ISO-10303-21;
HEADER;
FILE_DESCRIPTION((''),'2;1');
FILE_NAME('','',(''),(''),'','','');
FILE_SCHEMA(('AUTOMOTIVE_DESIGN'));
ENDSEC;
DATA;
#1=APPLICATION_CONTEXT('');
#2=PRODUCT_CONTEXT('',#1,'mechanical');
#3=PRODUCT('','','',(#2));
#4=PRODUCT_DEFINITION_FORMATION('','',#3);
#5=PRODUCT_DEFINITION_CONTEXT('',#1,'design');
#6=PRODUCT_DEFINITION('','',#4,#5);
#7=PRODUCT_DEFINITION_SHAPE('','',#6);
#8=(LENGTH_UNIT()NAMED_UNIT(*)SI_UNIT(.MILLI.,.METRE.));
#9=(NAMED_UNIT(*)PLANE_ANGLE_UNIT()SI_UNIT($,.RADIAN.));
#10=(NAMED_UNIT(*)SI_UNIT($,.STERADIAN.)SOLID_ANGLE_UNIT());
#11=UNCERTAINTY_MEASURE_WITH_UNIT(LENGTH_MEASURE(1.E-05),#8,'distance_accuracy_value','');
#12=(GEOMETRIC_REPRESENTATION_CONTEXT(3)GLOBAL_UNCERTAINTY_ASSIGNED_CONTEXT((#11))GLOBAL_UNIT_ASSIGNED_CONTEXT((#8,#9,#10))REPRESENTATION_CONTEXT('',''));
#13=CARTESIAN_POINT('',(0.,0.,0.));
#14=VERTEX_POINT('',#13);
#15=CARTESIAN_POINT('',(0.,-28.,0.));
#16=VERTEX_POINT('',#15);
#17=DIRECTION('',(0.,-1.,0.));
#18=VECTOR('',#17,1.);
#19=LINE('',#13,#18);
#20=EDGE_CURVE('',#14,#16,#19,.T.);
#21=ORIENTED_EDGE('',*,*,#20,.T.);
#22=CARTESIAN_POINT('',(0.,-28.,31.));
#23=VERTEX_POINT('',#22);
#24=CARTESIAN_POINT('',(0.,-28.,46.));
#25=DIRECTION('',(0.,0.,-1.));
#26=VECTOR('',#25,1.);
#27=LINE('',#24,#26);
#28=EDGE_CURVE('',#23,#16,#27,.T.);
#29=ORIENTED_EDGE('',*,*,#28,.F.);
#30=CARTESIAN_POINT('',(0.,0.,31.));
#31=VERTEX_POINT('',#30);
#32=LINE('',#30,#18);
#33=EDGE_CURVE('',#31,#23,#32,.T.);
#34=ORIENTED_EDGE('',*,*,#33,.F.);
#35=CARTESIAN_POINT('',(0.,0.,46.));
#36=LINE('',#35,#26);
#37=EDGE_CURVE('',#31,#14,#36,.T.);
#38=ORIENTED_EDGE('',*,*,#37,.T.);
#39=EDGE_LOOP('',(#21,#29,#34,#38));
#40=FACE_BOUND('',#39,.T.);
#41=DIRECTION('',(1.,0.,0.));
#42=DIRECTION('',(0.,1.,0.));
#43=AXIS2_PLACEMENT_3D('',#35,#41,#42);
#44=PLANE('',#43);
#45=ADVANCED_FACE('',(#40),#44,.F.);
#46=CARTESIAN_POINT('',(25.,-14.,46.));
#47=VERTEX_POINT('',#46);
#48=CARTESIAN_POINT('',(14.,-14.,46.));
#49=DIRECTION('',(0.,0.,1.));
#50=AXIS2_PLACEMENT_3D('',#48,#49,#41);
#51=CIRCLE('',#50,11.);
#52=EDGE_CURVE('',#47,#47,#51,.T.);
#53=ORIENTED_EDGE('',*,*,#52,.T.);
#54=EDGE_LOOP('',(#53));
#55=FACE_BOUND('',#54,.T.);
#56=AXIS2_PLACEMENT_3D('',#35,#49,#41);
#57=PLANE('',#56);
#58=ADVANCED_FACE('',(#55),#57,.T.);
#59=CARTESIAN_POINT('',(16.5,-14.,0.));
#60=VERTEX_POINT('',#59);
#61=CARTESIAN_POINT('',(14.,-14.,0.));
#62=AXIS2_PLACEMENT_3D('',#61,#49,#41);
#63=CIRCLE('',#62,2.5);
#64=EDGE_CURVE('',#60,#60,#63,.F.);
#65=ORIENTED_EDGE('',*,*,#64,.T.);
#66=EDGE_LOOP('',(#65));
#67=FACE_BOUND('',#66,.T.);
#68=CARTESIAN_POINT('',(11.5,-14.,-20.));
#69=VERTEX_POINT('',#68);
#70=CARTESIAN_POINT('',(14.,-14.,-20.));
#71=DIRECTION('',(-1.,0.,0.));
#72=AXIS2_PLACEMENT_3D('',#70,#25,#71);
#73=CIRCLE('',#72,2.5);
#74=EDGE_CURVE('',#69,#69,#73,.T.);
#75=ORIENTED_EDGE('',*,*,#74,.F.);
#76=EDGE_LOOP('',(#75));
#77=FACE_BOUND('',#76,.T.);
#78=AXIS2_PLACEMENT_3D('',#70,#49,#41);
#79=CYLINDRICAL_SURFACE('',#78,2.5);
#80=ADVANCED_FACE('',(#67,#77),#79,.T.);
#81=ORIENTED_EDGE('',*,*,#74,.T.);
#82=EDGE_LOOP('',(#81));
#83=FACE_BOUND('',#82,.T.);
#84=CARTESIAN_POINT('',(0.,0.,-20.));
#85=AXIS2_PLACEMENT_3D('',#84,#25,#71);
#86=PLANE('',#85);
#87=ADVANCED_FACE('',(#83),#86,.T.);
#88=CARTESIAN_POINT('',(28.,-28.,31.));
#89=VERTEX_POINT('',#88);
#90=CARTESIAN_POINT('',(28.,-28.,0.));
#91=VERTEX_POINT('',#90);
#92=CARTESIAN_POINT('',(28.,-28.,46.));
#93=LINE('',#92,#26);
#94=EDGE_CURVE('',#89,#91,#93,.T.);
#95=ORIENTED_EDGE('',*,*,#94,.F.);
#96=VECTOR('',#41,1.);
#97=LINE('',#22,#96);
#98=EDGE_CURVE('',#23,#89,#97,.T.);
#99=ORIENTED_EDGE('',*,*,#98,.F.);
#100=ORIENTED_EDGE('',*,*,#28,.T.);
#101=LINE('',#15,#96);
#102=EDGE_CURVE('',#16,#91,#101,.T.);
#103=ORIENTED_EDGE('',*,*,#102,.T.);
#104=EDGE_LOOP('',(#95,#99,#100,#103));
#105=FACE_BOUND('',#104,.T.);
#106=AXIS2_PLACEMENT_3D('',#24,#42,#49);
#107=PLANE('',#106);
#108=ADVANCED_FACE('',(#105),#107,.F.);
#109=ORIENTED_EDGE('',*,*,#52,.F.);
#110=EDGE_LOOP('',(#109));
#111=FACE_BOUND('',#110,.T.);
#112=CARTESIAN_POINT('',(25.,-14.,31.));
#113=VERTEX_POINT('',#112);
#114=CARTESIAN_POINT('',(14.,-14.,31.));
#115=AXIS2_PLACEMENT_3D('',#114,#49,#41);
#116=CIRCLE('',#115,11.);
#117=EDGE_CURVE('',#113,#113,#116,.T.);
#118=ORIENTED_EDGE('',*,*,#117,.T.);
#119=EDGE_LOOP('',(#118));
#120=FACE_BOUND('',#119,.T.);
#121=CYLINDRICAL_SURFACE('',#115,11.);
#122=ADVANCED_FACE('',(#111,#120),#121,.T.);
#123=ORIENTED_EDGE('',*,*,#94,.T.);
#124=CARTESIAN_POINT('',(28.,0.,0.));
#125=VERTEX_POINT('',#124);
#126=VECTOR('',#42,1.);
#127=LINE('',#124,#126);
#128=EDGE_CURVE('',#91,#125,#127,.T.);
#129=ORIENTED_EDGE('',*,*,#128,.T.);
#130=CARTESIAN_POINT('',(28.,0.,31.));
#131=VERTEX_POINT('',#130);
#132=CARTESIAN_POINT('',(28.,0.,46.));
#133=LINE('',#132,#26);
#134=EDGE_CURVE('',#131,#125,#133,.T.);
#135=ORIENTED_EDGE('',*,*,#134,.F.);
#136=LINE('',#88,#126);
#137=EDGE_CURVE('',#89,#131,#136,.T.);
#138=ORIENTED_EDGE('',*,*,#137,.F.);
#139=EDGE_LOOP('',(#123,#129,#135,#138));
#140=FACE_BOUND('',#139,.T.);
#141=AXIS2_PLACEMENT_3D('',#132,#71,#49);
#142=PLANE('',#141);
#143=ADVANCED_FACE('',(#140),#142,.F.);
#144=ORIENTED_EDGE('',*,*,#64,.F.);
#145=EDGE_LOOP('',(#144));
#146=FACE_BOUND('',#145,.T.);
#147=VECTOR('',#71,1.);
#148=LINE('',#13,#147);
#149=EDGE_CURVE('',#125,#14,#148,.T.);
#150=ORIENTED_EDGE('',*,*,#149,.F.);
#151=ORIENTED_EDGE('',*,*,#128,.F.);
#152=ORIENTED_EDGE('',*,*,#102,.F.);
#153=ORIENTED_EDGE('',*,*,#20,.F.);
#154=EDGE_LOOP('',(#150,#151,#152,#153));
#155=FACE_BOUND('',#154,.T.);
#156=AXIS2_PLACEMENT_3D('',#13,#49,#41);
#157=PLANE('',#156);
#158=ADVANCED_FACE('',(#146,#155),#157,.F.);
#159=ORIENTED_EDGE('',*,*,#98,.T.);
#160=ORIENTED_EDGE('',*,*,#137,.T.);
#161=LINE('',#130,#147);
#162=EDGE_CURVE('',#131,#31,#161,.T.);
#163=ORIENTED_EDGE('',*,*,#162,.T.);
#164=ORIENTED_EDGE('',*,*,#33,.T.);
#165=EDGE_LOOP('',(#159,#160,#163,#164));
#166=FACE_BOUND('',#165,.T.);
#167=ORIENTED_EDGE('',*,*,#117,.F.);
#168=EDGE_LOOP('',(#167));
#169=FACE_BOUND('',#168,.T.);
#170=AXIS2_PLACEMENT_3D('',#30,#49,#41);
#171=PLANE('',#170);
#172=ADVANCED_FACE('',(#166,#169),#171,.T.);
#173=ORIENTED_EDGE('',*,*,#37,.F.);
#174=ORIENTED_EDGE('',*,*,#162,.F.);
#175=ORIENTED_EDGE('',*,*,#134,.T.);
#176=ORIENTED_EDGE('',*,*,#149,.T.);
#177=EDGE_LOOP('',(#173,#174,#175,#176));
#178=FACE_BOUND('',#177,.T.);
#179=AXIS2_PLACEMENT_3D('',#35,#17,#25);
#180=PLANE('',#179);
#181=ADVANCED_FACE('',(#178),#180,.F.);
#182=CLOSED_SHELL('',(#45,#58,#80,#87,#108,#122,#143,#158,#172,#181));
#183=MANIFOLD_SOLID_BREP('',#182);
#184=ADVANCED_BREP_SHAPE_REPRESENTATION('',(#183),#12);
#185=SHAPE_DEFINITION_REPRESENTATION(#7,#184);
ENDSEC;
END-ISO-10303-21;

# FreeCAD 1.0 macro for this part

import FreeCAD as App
import Part
import Sketcher


def add_polygon(sketch, points):
    """Adds a closed chain of lines whose ends are joined by coincident constraints."""
    first, n = sketch.GeometryCount, len(points)
    for a, b in zip(points, points[1:] + points[:1]):
        sketch.addGeometry(Part.LineSegment(App.Vector(*a, 0), App.Vector(*b, 0)), False)
    for i in range(n):
        sketch.addConstraint(Sketcher.Constraint("Coincident", first + i, 2, first + (i + 1) % n, 1))

doc = App.newDocument("Part")
body = doc.addObject("PartDesign::Body", "Body")

# Sketch on XY plane
sketch1 = body.newObject("Sketcher::SketchObject", "Sketch")
sketch1.AttachmentSupport = (doc.getObject("XY_Plane"), [""])
sketch1.MapMode = "FlatFace"
add_polygon(sketch1, [(0, 0), (0, -28), (28, -28), (28, 0)])  # lines 0-3
sketch1.addConstraint([
    Sketcher.Constraint("Vertical", 0),
    Sketcher.Constraint("Horizontal", 1),
    Sketcher.Constraint("Vertical", 2),
    Sketcher.Constraint("Horizontal", 3),
    Sketcher.Constraint("Coincident", 3, 2, -1, 1),
    Sketcher.Constraint("Equal", 3, 0),
    Sketcher.Constraint("DistanceX", 1, 1, 1, 2, 28.0),
])
pad1 = body.newObject("PartDesign::Pad", "Pad")
pad1.Profile = sketch1
pad1.Length = 46

# Sketch on XY plane
sketch2 = body.newObject("Sketcher::SketchObject", "Sketch001")
sketch2.AttachmentSupport = (doc.getObject("XY_Plane"), [""])
sketch2.MapMode = "FlatFace"
sketch2.AttachmentOffset = App.Placement(App.Vector(0, 0, 46), App.Rotation())
add_polygon(sketch2, [(0, 0), (0, -28), (28, -28), (28, 0)])  # lines 0-3
sketch2.addGeometry(Part.Circle(App.Vector(14, -14, 0), App.Vector(0, 0, 1), 11), False)  # 4
sketch2.addConstraint([
    Sketcher.Constraint("Vertical", 0),
    Sketcher.Constraint("Horizontal", 1),
    Sketcher.Constraint("Vertical", 2),
    Sketcher.Constraint("Horizontal", 3),
    Sketcher.Constraint("Coincident", 3, 2, -1, 1),
    Sketcher.Constraint("Equal", 3, 0),
    Sketcher.Constraint("Diameter", 4, 22.0),
    Sketcher.Constraint("DistanceX", 1, 1, 1, 2, 28.0),
    Sketcher.Constraint("DistanceX", -1, 1, 4, 3, 14.0),
    Sketcher.Constraint("DistanceY", 4, 3, -1, 1, 14.0),
])
pocket1 = body.newObject("PartDesign::Pocket", "Pocket")
pocket1.Profile = sketch2
pocket1.Length = 15

# Sketch on XY plane
sketch3 = body.newObject("Sketcher::SketchObject", "Sketch002")
sketch3.AttachmentSupport = (doc.getObject("XY_Plane"), [""])
sketch3.MapMode = "FlatFace"
sketch3.addGeometry(Part.Circle(App.Vector(14, -14, 0), App.Vector(0, 0, 1), 2.5), False)
sketch3.addConstraint([
    Sketcher.Constraint("Diameter", 0, 5.0),
    Sketcher.Constraint("DistanceX", -1, 1, 0, 3, 14.0),
    Sketcher.Constraint("DistanceY", 0, 3, -1, 1, 14.0),
])
pad2 = body.newObject("PartDesign::Pad", "Pad001")
pad2.Profile = sketch3
pad2.Length = 20
pad2.Reversed = True

doc.recompute()
